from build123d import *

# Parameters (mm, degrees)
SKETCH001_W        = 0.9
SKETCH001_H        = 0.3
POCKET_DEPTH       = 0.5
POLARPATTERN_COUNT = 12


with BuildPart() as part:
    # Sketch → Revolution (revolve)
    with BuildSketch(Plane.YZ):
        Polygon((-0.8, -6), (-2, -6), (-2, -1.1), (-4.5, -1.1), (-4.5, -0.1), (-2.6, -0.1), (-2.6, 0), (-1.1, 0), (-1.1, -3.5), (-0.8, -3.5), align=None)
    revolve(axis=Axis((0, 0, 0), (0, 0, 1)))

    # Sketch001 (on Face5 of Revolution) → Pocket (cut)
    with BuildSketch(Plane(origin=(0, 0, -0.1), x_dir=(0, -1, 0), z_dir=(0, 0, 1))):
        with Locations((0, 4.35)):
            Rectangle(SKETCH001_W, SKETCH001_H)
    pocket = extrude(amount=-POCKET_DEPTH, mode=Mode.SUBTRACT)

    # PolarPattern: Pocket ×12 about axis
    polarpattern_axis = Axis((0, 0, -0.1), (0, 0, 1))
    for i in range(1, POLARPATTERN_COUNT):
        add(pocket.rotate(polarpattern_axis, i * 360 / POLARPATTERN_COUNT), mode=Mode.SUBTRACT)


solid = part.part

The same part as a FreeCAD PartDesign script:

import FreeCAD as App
import Part
import Sketcher


def add_polygon(sketch, points):
    """Adds a closed chain of lines whose ends are joined by coincident constraints."""
    first, n = sketch.GeometryCount, len(points)
    for a, b in zip(points, points[1:] + points[:1]):
        sketch.addGeometry(Part.LineSegment(App.Vector(*a, 0), App.Vector(*b, 0)), False)
    for i in range(n):
        sketch.addConstraint(Sketcher.Constraint("Coincident", first + i, 2, first + (i + 1) % n, 1))

doc = App.newDocument("Part")
params = doc.addObject("Spreadsheet::Sheet", "Params")
for row, (alias, value) in enumerate([
    ("sketch1_height", "1 mm"),
    ("sketch1_width", "1.2 mm"),
    ("sketch1_width2", "0.3 mm"),
    ("sketch1_width3", "1.5 mm"),
    ("sketch1_width4", "1.9 mm"),
    ("revolution_angle", "360 deg"),
    ("sketch2_width", "0.3 mm"),
    ("sketch2_height", "0.9 mm"),
    ("pocket1_length", "0.5 mm"),
], start=1):
    params.set(f"A{row}", alias)
    params.set(f"B{row}", "=" + value)
    params.setAlias(f"B{row}", alias)

body = doc.addObject("PartDesign::Body", "Body")

sketch1 = body.newObject("Sketcher::SketchObject", "Sketch")
sketch1.AttachmentSupport = (doc.getObject("YZ_Plane"), [""])
sketch1.MapMode = "FlatFace"
add_polygon(sketch1, [(-2, -6), (-0.8, -6), (-0.8, -3.5), (-1.1, -3.5), (-1.1, 0), (-2.6, 0), (-2.6, -0.1), (-4.5, -0.1), (-4.5, -1.1), (-2, -1.1)])
sketch1.addConstraint(Sketcher.Constraint("Horizontal", 0))
sketch1.addConstraint(Sketcher.Constraint("Vertical", 1))
sketch1.addConstraint(Sketcher.Constraint("Horizontal", 2))
sketch1.addConstraint(Sketcher.Constraint("Vertical", 3))
sketch1.addConstraint(Sketcher.Constraint("Horizontal", 4))
sketch1.addConstraint(Sketcher.Constraint("Vertical", 5))
sketch1.addConstraint(Sketcher.Constraint("Horizontal", 6))
sketch1.addConstraint(Sketcher.Constraint("Vertical", 7))
sketch1.addConstraint(Sketcher.Constraint("Horizontal", 8))
sketch1.addConstraint(Sketcher.Constraint("Vertical", 9))
sketch1.addConstraint(Sketcher.Constraint("PointOnObject", 3, 2, -1))
sketch1.addConstraint(Sketcher.Constraint("Equal", 8, 1))
sketch1.addConstraint(Sketcher.Constraint("DistanceY", 7, 2, 7, 1, 1.0))
sketch1.addConstraint(Sketcher.Constraint("DistanceX", 0, 1, 0, 2, 1.2))
sketch1.addConstraint(Sketcher.Constraint("DistanceX", 2, 2, 2, 1, 0.3))
sketch1.addConstraint(Sketcher.Constraint("DistanceX", 4, 2, 4, 1, 1.5))
sketch1.addConstraint(Sketcher.Constraint("DistanceX", 6, 2, 6, 1, 1.9))
sketch1.addConstraint(Sketcher.Constraint("DistanceY", 3, 1, 3, 2, 3.5))
sketch1.addConstraint(Sketcher.Constraint("DistanceY", 5, 2, 5, 1, 0.1))
sketch1.addConstraint(Sketcher.Constraint("DistanceX", 8, 2, -1, 1, 2.0))
sketch1.setExpression("Constraints[22]", "Params.sketch1_height")
sketch1.setExpression("Constraints[23]", "Params.sketch1_width")
sketch1.setExpression("Constraints[24]", "Params.sketch1_width2")
sketch1.setExpression("Constraints[25]", "Params.sketch1_width3")
sketch1.setExpression("Constraints[26]", "Params.sketch1_width4")
revolution = body.newObject("PartDesign::Revolution", "Revolution")
revolution.Profile = sketch1
revolution.ReferenceAxis = (sketch1, ["V_Axis"])
revolution.setExpression("Angle", "Params.revolution_angle")

sketch2 = body.newObject("Sketcher::SketchObject", "Sketch001")
sketch2.AttachmentSupport = (doc.getObject("XY_Plane"), [""])
sketch2.MapMode = "FlatFace"
sketch2.AttachmentOffset = App.Placement(App.Vector(0, 0, -0.1), App.Rotation())
add_polygon(sketch2, [(4.5, 0.45), (4.2, 0.45), (4.2, -0.45), (4.5, -0.45)])
sketch2.addConstraint(Sketcher.Constraint("Horizontal", 0))
sketch2.addConstraint(Sketcher.Constraint("Vertical", 1))
sketch2.addConstraint(Sketcher.Constraint("Horizontal", 2))
sketch2.addConstraint(Sketcher.Constraint("Vertical", 3))
sketch2.addConstraint(Sketcher.Constraint("DistanceX", 0, 2, 0, 1, 0.3))
sketch2.addConstraint(Sketcher.Constraint("DistanceY", 1, 2, 1, 1, 0.9))
sketch2.addConstraint(Sketcher.Constraint("DistanceX", -1, 1, 0, 2, 4.2))
sketch2.addConstraint(Sketcher.Constraint("DistanceY", -1, 1, 0, 2, 0.45))
sketch2.setExpression("Constraints[8]", "Params.sketch2_width")
sketch2.setExpression("Constraints[9]", "Params.sketch2_height")
pocket1 = body.newObject("PartDesign::Pocket", "Pocket")
pocket1.Profile = sketch2
pocket1.setExpression("Length", "Params.pocket1_length")
doc.recompute()

polarpattern = body.newObject("PartDesign::PolarPattern", "PolarPattern")
polarpattern.Originals = [pocket1]
polarpattern.Axis = (doc.getObject("Z_Axis"), [""])
polarpattern.Angle = 360
polarpattern.Occurrences = 12
body.Tip = polarpattern

doc.recompute()
